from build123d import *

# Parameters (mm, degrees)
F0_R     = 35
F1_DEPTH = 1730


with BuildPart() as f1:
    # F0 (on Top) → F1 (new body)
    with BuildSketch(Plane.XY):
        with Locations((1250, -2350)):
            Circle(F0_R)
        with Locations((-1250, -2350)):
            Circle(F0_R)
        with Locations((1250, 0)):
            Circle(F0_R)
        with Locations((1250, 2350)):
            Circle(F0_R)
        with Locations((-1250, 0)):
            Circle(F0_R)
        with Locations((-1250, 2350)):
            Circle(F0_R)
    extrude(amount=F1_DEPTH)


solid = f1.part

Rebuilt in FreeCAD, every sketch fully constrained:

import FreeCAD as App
import Part
import Sketcher
from FreeCAD import Vector

doc = App.newDocument("Part")
body = doc.addObject("PartDesign::Body", "Body")
body.AllowCompound = True

sketch1 = body.newObject("Sketcher::SketchObject", "Sketch")
sketch1.AttachmentSupport = (doc.getObject("XY_Plane"), [""])
sketch1.MapMode = "FlatFace"
sketch1.addGeometry([
    Part.Circle(Vector(1250, -2350, 0), Vector(0, 0, 1), 35),
    Part.Circle(Vector(-1250, -2350, 0), Vector(0, 0, 1), 35),
    Part.Circle(Vector(1250, 0, 0), Vector(0, 0, 1), 35),
    Part.Circle(Vector(1250, 2350, 0), Vector(0, 0, 1), 35),
    Part.Circle(Vector(-1250, 0, 0), Vector(0, 0, 1), 35),
    Part.Circle(Vector(-1250, 2350, 0), Vector(0, 0, 1), 35),
], False)
sketch1.addConstraint([
    Sketcher.Constraint("Equal", 0, 1),
    Sketcher.Constraint("Equal", 1, 2),
    Sketcher.Constraint("Equal", 2, 3),
    Sketcher.Constraint("Equal", 3, 4),
    Sketcher.Constraint("Equal", 4, 5),
    Sketcher.Constraint("Symmetric", 1, 3, 3, 3, -1, 1),
    Sketcher.Constraint("Symmetric", 2, 3, 4, 3, -1, 1),
    Sketcher.Constraint("Symmetric", 0, 3, 5, 3, -1, 1),
    Sketcher.Constraint("Symmetric", 0, 3, 1, 3, -2),
    Sketcher.Constraint("PointOnObject", 2, 3, -1),
    Sketcher.Constraint("Vertical", 0, 3, 2, 3),
    Sketcher.Constraint("Diameter", 0, 70.0),
    Sketcher.Constraint("DistanceX", -1, 1, 0, 3, 1250.0),
    Sketcher.Constraint("DistanceY", 0, 3, -1, 1, 2350.0),
])
pad1 = body.newObject("PartDesign::Pad", "Pad")
pad1.Profile = sketch1
pad1.Length = 1730

doc.recompute()
